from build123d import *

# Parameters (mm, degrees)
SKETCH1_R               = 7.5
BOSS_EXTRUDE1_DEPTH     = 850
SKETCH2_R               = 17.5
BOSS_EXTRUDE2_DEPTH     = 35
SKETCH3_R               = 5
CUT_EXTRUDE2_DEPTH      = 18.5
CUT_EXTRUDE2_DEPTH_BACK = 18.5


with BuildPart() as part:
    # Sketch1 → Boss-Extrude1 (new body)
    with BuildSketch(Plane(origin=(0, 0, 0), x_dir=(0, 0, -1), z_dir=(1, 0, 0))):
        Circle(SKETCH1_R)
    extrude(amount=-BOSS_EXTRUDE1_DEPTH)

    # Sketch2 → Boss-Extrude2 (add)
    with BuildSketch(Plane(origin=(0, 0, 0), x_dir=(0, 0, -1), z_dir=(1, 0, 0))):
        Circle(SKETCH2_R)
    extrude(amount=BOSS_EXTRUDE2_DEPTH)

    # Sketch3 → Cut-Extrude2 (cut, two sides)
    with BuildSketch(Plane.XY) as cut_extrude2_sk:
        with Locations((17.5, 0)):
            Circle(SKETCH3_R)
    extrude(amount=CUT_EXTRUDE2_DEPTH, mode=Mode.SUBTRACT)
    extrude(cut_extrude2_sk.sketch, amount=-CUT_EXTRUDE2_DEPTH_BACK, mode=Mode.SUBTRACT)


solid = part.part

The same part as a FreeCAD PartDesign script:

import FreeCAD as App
import Part
import Sketcher

V = App.Vector
Q = App.Units.Quantity

doc = App.newDocument("Part")
body = doc.addObject("PartDesign::Body", "Body")

# Sketch on YZ plane
sketch1 = body.newObject("Sketcher::SketchObject", "Sketch")
sketch1.AttachmentSupport = (doc.getObject("YZ_Plane"), [""])
sketch1.MapMode = "FlatFace"
sketch1.addGeometry(Part.Circle(V(0, 0, 0), V(0, 0, 1), 8), False)
sketch1.addConstraint(Sketcher.Constraint("Coincident", 0, 3, -1, 1))
sketch1.addConstraint(Sketcher.Constraint("Diameter", 0, Q("15 mm")))
pad1 = body.newObject("PartDesign::Pad", "Pad")
pad1.Profile = sketch1
pad1.Length = 850
pad1.Reversed = True

# Sketch on YZ plane
sketch2 = body.newObject("Sketcher::SketchObject", "Sketch001")
sketch2.AttachmentSupport = (doc.getObject("YZ_Plane"), [""])
sketch2.MapMode = "FlatFace"
sketch2.addGeometry(Part.Circle(V(0, 0, 0), V(0, 0, 1), 18), False)
sketch2.addConstraint(Sketcher.Constraint("Coincident", 0, 3, -1, 1))
sketch2.addConstraint(Sketcher.Constraint("Diameter", 0, Q("35 mm")))
pad2 = body.newObject("PartDesign::Pad", "Pad001")
pad2.Profile = sketch2
pad2.Length = 35

# Sketch on XY plane
sketch3 = body.newObject("Sketcher::SketchObject", "Sketch002")
sketch3.AttachmentSupport = (doc.getObject("XY_Plane"), [""])
sketch3.MapMode = "FlatFace"
sketch3.addGeometry(Part.Circle(V(18, 0, 0), V(0, 0, 1), 5), False)
sketch3.addConstraint(Sketcher.Constraint("PointOnObject", 0, 3, -1))
sketch3.addConstraint(Sketcher.Constraint("Diameter", 0, Q("10 mm")))
sketch3.addConstraint(Sketcher.Constraint("DistanceX", -1, 1, 0, 3, Q("17.5 mm")))
pocket1 = body.newObject("PartDesign::Pocket", "Pocket")
pocket1.Profile = sketch3
pocket1.Type = "ThroughAll"
pocket1.Midplane = True

doc.recompute()
